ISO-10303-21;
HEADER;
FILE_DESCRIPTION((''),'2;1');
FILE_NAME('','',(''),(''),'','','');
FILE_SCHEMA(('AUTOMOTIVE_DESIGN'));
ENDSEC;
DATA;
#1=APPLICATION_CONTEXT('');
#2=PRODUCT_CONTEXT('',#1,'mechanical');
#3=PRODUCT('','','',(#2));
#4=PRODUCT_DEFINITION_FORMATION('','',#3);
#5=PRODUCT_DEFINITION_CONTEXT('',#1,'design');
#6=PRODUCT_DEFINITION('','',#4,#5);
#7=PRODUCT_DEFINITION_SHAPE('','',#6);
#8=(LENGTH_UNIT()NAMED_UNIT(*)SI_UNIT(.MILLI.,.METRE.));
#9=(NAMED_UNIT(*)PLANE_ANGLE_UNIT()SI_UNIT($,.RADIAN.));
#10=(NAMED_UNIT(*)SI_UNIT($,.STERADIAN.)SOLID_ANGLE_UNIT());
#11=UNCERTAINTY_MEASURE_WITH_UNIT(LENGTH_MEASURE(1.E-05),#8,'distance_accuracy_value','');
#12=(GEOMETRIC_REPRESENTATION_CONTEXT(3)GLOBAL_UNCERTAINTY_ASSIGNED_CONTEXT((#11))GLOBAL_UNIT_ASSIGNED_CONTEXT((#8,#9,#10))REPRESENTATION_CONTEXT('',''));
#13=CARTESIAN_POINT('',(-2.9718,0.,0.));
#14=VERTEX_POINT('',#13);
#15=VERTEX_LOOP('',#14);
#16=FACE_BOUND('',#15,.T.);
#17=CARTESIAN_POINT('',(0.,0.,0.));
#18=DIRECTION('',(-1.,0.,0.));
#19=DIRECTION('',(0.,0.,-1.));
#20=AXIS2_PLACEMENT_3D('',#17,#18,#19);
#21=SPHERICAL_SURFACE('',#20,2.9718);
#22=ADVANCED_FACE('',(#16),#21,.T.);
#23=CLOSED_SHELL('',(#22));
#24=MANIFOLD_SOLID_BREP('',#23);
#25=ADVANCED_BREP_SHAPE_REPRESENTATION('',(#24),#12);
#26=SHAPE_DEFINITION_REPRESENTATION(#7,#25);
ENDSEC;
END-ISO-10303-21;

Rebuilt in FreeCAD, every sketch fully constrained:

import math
import FreeCAD as App
import Part
import Sketcher

V = App.Vector
Q = App.Units.Quantity

doc = App.newDocument("Part")
params = doc.addObject("Spreadsheet::Sheet", "Params")
for row, (alias, value) in enumerate([
    ("sketch1_radius", "0.117 in"),
    ("revolution_angle", "360 deg"),
], start=1):
    params.set(f"A{row}", alias)
    params.set(f"B{row}", "=" + value)
    params.setAlias(f"B{row}", alias)

body = doc.addObject("PartDesign::Body", "Body")

# Sketch on XZ plane
sketch1 = doc.addObject("Sketcher::SketchObject", "Sketch")
body.addObject(sketch1)
sketch1.AttachmentSupport = (doc.XZ_Plane, [""])
sketch1.MapMode = "FlatFace"
sketch1.addGeometry(Part.LineSegment(V(-2.9718, 0, 0), V(2.9718, 0, 0)), False)
sketch1.addGeometry(Part.ArcOfCircle(Part.Circle(V(0, 0, 0), V(0, 0, 1), 2.9718), math.radians(180), math.radians(360)), False)
sketch1.addConstraint(Sketcher.Constraint("Coincident", 0, 1, 1, 1))
sketch1.addConstraint(Sketcher.Constraint("Coincident", 1, 2, 0, 2))
sketch1.addConstraint(Sketcher.Constraint("Horizontal", 0))
sketch1.addConstraint(Sketcher.Constraint("Coincident", 1, 3, -1, 1))
sketch1.addConstraint(Sketcher.Constraint("PointOnObject", 0, 1, -1))
sketch1.addConstraint(Sketcher.Constraint("Radius", 1, Q("0.117 in")))
sketch1.setExpression("Constraints[5]", "Params.sketch1_radius")
revolution = doc.addObject("PartDesign::Revolution", "Revolution")
body.addObject(revolution)
revolution.Profile = sketch1
revolution.ReferenceAxis = (sketch1, ["H_Axis"])
revolution.setExpression("Angle", "Params.revolution_angle")

doc.recompute()
